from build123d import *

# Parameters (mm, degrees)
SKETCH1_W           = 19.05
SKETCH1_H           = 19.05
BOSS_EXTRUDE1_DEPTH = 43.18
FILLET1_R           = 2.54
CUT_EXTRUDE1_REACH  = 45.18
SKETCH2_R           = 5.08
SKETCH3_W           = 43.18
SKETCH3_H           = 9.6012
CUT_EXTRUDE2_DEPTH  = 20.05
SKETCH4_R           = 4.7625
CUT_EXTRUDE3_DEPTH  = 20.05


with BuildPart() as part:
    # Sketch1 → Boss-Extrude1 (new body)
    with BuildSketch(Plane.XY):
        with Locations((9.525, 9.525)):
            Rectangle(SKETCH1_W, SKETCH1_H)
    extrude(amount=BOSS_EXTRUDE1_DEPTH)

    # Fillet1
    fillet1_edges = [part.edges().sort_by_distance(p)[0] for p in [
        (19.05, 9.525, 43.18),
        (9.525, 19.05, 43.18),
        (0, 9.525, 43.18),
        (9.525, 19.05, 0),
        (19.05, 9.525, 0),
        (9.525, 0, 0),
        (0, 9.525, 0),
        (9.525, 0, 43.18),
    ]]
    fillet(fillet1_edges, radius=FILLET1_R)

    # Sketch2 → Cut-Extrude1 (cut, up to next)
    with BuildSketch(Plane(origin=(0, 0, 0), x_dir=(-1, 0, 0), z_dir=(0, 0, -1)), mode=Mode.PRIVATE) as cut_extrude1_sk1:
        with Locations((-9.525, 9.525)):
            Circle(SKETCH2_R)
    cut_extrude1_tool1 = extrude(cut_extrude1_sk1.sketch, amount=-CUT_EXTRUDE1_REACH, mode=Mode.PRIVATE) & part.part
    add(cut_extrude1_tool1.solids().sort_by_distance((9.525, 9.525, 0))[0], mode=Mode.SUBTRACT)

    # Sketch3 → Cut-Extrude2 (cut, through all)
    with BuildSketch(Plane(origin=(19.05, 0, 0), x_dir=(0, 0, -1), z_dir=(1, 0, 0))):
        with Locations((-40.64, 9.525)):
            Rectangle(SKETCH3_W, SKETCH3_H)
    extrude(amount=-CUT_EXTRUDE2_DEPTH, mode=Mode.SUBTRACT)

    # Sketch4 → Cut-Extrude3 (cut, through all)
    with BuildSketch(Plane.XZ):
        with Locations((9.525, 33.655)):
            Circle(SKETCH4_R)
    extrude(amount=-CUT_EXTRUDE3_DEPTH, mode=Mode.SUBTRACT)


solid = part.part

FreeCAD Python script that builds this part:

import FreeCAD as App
import Part
import Sketcher
from FreeCAD import Vector
Q = App.Units.Quantity


def edges_at(feature, points):
    """Names of the edges that pass closest to the given points."""
    edges = feature.Shape.Edges
    near = lambda p: min(range(len(edges)), key=lambda i: edges[i].distToShape(Part.Vertex(*p))[0])
    return sorted({f"Edge{near(p) + 1}" for p in points})

doc = App.newDocument("Part")
body = doc.addObject("PartDesign::Body", "Body")

sketch1 = body.newObject("Sketcher::SketchObject", "Sketch")
sketch1.AttachmentSupport = (doc.getObject("XY_Plane"), [""])
sketch1.MapMode = "FlatFace"
sketch1.addGeometry(Part.LineSegment(Vector(0, 19.05, 0), Vector(0, 0, 0)), False)
sketch1.addGeometry(Part.LineSegment(Vector(0, 0, 0), Vector(19.05, 0, 0)), False)
sketch1.addGeometry(Part.LineSegment(Vector(19.05, 0, 0), Vector(19.05, 19.05, 0)), False)
sketch1.addGeometry(Part.LineSegment(Vector(19.05, 19.05, 0), Vector(0, 19.05, 0)), False)
sketch1.addConstraint(Sketcher.Constraint("Coincident", 0, 2, 1, 1))
sketch1.addConstraint(Sketcher.Constraint("Coincident", 1, 2, 2, 1))
sketch1.addConstraint(Sketcher.Constraint("Coincident", 2, 2, 3, 1))
sketch1.addConstraint(Sketcher.Constraint("Coincident", 3, 2, 0, 1))
sketch1.addConstraint(Sketcher.Constraint("Vertical", 0))
sketch1.addConstraint(Sketcher.Constraint("Horizontal", 1))
sketch1.addConstraint(Sketcher.Constraint("Vertical", 2))
sketch1.addConstraint(Sketcher.Constraint("Horizontal", 3))
sketch1.addConstraint(Sketcher.Constraint("Coincident", 0, 2, -1, 1))
sketch1.addConstraint(Sketcher.Constraint("Equal", 3, 0))
sketch1.addConstraint(Sketcher.Constraint("DistanceX", 1, 1, 1, 2, Q("0.75 in")))
pad1 = body.newObject("PartDesign::Pad", "Pad")
pad1.Profile = sketch1
pad1.Length = Q("1.7 in")
doc.recompute()

fillet = body.newObject("PartDesign::Fillet", "Fillet")
fillet.Base = (pad1, edges_at(pad1, [
    (19.05, 9.525, 43.18),
    (9.525, 19.05, 43.18),
    (0, 9.525, 43.18),
    (9.525, 19.05, 0),
    (19.05, 9.525, 0),
    (9.525, 0, 0),
    (0, 9.525, 0),
    (9.525, 0, 43.18),
]))
fillet.Radius = Q("0.1 in")

sketch2 = body.newObject("Sketcher::SketchObject", "Sketch001")
sketch2.AttachmentSupport = (doc.getObject("XY_Plane"), [""])
sketch2.MapMode = "FlatFace"
sketch2.addGeometry(Part.Circle(Vector(9.525, 9.525, 0), Vector(0, 0, 1), 5.08), False)
sketch2.addConstraint(Sketcher.Constraint("Diameter", 0, Q("0.4 in")))
sketch2.addConstraint(Sketcher.Constraint("DistanceX", -1, 1, 0, 3, Q("0.375 in")))
sketch2.addConstraint(Sketcher.Constraint("DistanceY", -1, 1, 0, 3, Q("0.375 in")))
pocket1 = body.newObject("PartDesign::Pocket", "Pocket")
pocket1.Profile = sketch2
pocket1.Type = "UpToFirst"
pocket1.Reversed = True

sketch3 = body.newObject("Sketcher::SketchObject", "Sketch002")
sketch3.AttachmentSupport = (doc.getObject("YZ_Plane"), [""])
sketch3.MapMode = "FlatFace"
sketch3.AttachmentOffset = App.Placement(Vector(0, 0, 0.75 * 25.4), App.Rotation())
sketch3.addGeometry(Part.LineSegment(Vector(14.3256, 62.23, 0), Vector(4.7244, 62.23, 0)), False)
sketch3.addGeometry(Part.LineSegment(Vector(4.7244, 62.23, 0), Vector(4.7244, 19.05, 0)), False)
sketch3.addGeometry(Part.LineSegment(Vector(4.7244, 19.05, 0), Vector(14.3256, 19.05, 0)), False)
sketch3.addGeometry(Part.LineSegment(Vector(14.3256, 19.05, 0), Vector(14.3256, 62.23, 0)), False)
sketch3.addConstraint(Sketcher.Constraint("Coincident", 0, 2, 1, 1))
sketch3.addConstraint(Sketcher.Constraint("Coincident", 1, 2, 2, 1))
sketch3.addConstraint(Sketcher.Constraint("Coincident", 2, 2, 3, 1))
sketch3.addConstraint(Sketcher.Constraint("Coincident", 3, 2, 0, 1))
sketch3.addConstraint(Sketcher.Constraint("Horizontal", 0))
sketch3.addConstraint(Sketcher.Constraint("Vertical", 1))
sketch3.addConstraint(Sketcher.Constraint("Horizontal", 2))
sketch3.addConstraint(Sketcher.Constraint("Vertical", 3))
sketch3.addConstraint(Sketcher.Constraint("DistanceY", 1, 2, 1, 1, Q("1.7 in")))
sketch3.addConstraint(Sketcher.Constraint("DistanceX", 0, 2, 0, 1, Q("0.378 in")))
sketch3.addConstraint(Sketcher.Constraint("DistanceY", -1, 1, 0, 2, Q("2.45 in")))
sketch3.addConstraint(Sketcher.Constraint("DistanceX", -1, 1, 0, 2, Q("0.186 in")))
pocket2 = body.newObject("PartDesign::Pocket", "Pocket001")
pocket2.Profile = sketch3
pocket2.Type = "ThroughAll"

sketch4 = body.newObject("Sketcher::SketchObject", "Sketch003")
sketch4.AttachmentSupport = (doc.getObject("XZ_Plane"), [""])
sketch4.MapMode = "FlatFace"
sketch4.addGeometry(Part.Circle(Vector(9.525, 33.655, 0), Vector(0, 0, 1), 4.7625), False)
sketch4.addConstraint(Sketcher.Constraint("Diameter", 0, Q("0.375 in")))
sketch4.addConstraint(Sketcher.Constraint("DistanceX", -1, 1, 0, 3, Q("0.375 in")))
sketch4.addConstraint(Sketcher.Constraint("DistanceY", -1, 1, 0, 3, Q("1.325 in")))
pocket3 = body.newObject("PartDesign::Pocket", "Pocket002")
pocket3.Profile = sketch4
pocket3.Type = "ThroughAll"

doc.recompute()
